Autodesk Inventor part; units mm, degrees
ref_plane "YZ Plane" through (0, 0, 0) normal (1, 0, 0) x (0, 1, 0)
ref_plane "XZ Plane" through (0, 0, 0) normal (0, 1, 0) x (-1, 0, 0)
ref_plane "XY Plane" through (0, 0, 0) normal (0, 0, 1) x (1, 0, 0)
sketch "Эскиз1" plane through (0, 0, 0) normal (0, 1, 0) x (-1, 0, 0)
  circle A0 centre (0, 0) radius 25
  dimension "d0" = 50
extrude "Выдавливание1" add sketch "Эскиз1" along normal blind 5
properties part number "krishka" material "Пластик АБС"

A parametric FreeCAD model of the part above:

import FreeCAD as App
import Part
import Sketcher
from FreeCAD import Vector
Q = App.Units.Quantity

doc = App.newDocument("Part")
body = doc.addObject("PartDesign::Body", "Body")

# Sketch on XZ plane
sketch1 = body.newObject("Sketcher::SketchObject", "Sketch")
sketch1.AttachmentSupport = (doc.getObject("XZ_Plane"), [""])
sketch1.MapMode = "FlatFace"
sketch1.addGeometry(Part.Circle(Vector(0, 0, 0), Vector(0, 0, 1), 25), False)
sketch1.addConstraint([
    Sketcher.Constraint("Coincident", 0, 3, -1, 1),
    Sketcher.Constraint("Diameter", 0, Q("50 mm")),
])
pad1 = body.newObject("PartDesign::Pad", "Pad")
pad1.Profile = sketch1
pad1.Length = 5
pad1.Reversed = True

doc.recompute()
